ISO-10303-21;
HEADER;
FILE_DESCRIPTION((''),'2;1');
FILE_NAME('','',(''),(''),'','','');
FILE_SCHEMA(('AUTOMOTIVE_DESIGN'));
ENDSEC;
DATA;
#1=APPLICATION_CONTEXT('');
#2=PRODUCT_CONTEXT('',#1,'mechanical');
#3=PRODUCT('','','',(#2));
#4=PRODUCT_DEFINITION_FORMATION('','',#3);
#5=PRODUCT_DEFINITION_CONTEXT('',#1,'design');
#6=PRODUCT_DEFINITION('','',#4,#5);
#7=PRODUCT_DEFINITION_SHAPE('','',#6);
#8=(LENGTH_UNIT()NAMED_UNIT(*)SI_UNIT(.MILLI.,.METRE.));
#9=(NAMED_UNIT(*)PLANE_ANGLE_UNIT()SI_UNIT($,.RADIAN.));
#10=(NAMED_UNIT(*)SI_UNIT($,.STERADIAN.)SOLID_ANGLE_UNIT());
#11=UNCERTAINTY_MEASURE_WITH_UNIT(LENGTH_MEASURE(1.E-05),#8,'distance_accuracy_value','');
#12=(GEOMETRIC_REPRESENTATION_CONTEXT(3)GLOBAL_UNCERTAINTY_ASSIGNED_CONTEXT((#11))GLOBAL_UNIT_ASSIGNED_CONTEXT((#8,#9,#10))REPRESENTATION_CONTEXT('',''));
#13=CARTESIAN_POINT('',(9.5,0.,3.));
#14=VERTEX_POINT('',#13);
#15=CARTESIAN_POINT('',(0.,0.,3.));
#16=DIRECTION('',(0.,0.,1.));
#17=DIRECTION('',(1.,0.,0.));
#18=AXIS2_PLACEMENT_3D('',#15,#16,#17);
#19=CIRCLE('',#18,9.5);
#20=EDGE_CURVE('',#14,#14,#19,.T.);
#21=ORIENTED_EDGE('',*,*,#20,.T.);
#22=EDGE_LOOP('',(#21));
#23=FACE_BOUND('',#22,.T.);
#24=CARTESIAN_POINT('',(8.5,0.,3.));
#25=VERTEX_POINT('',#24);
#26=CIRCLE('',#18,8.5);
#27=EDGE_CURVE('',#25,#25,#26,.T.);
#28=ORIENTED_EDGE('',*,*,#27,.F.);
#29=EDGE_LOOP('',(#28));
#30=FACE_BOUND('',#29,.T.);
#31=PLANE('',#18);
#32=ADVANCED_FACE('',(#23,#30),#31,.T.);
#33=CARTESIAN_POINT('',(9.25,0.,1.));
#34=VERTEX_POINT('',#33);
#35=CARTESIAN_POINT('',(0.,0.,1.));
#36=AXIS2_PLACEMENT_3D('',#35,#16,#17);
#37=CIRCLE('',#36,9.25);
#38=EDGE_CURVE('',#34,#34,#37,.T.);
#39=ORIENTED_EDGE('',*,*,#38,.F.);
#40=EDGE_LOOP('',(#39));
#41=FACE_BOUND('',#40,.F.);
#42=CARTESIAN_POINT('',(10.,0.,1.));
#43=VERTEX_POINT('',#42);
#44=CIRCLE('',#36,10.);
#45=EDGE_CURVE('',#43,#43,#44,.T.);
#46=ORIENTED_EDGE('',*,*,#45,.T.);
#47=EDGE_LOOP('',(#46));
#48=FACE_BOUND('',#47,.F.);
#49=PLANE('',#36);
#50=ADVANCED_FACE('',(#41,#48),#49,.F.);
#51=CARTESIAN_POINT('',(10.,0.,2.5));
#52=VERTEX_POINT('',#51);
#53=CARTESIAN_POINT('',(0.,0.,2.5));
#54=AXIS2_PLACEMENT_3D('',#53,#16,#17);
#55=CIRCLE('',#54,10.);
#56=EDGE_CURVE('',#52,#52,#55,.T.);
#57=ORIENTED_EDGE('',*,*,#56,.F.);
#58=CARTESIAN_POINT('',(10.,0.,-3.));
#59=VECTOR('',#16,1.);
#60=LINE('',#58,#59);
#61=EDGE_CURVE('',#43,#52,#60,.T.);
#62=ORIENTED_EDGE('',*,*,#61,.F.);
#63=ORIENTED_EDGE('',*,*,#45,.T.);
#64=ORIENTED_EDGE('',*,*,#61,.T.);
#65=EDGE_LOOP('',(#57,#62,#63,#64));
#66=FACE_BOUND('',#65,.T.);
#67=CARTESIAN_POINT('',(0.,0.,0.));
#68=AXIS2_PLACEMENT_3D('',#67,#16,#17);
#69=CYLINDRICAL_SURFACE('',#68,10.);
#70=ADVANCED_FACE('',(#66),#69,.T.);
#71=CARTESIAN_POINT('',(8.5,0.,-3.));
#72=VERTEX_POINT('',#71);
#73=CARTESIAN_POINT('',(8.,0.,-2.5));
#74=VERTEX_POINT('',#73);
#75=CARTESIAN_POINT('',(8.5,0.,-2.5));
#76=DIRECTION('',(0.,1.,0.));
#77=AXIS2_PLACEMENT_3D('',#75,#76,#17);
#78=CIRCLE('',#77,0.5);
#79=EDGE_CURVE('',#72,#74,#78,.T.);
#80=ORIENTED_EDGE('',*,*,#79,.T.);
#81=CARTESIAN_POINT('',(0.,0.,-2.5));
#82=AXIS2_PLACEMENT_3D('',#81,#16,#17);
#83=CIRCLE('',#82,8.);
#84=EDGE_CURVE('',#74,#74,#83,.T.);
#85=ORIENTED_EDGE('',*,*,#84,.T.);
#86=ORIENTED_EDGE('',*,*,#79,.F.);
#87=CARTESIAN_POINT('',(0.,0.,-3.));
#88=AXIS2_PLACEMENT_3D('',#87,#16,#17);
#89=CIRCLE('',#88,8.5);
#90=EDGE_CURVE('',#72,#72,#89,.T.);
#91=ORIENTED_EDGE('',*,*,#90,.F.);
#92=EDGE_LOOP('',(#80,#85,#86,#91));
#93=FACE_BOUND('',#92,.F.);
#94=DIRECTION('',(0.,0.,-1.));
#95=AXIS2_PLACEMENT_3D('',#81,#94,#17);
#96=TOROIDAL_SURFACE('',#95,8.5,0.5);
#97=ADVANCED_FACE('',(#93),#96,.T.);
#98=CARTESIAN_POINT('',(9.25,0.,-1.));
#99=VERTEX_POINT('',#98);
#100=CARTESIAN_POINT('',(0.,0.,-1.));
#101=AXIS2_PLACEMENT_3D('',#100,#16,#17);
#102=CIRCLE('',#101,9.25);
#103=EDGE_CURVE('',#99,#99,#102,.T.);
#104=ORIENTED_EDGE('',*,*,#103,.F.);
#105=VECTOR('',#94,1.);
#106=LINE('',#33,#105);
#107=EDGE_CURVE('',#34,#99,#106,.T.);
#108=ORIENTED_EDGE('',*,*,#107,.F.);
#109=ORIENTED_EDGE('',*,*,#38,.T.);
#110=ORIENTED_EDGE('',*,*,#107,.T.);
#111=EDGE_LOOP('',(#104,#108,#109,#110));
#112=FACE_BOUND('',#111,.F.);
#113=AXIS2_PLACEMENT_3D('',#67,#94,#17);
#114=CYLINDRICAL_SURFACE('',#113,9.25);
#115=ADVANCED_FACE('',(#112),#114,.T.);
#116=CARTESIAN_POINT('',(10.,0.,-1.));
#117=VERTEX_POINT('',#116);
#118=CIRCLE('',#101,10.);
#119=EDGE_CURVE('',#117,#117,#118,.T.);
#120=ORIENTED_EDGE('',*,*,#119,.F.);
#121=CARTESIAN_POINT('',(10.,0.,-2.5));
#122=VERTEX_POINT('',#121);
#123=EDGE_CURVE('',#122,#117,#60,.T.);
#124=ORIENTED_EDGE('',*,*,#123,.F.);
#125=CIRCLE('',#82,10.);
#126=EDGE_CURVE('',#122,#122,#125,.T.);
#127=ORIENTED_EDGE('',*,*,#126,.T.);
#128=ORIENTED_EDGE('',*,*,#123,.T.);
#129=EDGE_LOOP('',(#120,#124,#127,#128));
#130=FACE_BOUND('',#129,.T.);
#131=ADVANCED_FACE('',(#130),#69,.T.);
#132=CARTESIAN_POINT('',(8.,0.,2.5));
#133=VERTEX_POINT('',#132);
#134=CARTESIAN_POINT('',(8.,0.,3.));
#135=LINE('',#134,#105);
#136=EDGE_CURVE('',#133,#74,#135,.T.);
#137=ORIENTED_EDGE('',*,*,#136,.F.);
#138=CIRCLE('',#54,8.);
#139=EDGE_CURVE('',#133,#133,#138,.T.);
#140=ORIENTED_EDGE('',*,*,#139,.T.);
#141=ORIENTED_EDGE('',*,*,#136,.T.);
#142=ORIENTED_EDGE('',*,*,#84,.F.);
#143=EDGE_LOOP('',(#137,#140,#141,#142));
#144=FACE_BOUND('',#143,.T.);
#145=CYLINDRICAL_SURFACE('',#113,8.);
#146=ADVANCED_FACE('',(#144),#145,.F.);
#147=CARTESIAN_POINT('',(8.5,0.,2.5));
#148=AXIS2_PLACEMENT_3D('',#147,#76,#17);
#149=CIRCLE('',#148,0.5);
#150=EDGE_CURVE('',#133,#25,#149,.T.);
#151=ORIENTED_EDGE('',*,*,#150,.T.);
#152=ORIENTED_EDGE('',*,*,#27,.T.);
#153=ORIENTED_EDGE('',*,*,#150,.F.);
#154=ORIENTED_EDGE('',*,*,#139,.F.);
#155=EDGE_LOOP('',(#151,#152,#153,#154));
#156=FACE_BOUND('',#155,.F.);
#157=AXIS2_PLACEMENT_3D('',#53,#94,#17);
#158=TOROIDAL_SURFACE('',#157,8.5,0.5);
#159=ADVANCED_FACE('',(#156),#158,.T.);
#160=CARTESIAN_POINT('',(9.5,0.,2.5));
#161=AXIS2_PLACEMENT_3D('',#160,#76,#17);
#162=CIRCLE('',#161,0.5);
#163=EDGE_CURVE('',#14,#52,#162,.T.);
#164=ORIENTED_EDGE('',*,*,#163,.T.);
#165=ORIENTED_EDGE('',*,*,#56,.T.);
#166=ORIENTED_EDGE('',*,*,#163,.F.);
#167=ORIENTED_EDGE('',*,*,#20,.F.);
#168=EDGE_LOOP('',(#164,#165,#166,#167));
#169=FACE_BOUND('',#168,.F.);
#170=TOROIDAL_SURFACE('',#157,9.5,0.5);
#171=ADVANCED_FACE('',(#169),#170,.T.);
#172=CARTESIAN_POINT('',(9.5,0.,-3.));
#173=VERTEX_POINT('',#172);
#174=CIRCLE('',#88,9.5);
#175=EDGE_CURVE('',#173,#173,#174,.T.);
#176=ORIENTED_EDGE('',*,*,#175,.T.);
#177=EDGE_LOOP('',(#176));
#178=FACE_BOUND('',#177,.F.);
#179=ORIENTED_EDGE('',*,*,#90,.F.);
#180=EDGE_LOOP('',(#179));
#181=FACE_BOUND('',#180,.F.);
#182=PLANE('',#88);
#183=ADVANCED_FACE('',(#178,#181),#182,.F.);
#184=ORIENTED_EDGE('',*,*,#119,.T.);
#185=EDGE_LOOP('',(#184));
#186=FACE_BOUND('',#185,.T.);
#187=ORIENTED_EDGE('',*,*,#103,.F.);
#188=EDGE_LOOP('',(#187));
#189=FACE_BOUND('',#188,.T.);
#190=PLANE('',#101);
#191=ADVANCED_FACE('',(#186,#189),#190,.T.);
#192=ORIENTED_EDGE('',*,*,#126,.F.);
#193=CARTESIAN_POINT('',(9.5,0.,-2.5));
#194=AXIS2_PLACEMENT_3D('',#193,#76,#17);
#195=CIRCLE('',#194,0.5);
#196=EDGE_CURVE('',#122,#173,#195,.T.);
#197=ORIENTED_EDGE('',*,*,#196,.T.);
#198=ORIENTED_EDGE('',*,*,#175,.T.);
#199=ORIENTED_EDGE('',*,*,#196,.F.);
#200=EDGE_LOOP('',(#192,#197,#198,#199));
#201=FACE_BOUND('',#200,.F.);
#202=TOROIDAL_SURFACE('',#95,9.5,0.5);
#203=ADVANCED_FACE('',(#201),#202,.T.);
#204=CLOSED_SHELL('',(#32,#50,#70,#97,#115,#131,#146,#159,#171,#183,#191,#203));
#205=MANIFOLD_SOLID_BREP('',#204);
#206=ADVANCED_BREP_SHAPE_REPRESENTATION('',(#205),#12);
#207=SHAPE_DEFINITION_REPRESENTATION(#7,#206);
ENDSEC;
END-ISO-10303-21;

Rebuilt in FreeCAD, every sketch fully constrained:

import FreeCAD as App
import Part
import Sketcher
from FreeCAD import Vector
Q = App.Units.Quantity


def edges_at(feature, points):
    """Names of the edges that pass closest to the given points."""
    edges = feature.Shape.Edges
    near = lambda p: min(range(len(edges)), key=lambda i: edges[i].distToShape(Part.Vertex(*p))[0])
    return sorted({f"Edge{near(p) + 1}" for p in points})

doc = App.newDocument("Part")
params = doc.addObject("Spreadsheet::Sheet", "Params")
for row, (alias, value) in enumerate([
    ("sketch1_diameter", "20 mm"),
    ("sketch1_diameter2", "16 mm"),
    ("pad1_length", "6 mm"),
    ("sketch2_diameter", "20 mm"),
    ("sketch2_diameter2", "18.5 mm"),
    ("pocket1_length", "2 mm"),
    ("fillet_radius", "0.5 mm"),
], start=1):
    params.set(f"A{row}", alias)
    params.set(f"B{row}", "=" + value)
    params.setAlias(f"B{row}", alias)

body = doc.addObject("PartDesign::Body", "Body")

sketch1 = body.newObject("Sketcher::SketchObject", "Sketch")
sketch1.AttachmentSupport = (doc.getObject("XY_Plane"), [""])
sketch1.MapMode = "FlatFace"
sketch1.addGeometry([
    Part.Circle(Vector(0, 0, 0), Vector(0, 0, 1), 10),
    Part.Circle(Vector(0, 0, 0), Vector(0, 0, 1), 8),
], False)
sketch1.addConstraint([
    Sketcher.Constraint("Coincident", 0, 3, -1, 1),
    Sketcher.Constraint("Coincident", 1, 3, -1, 1),
    Sketcher.Constraint("Diameter", 0, Q("20 mm")),
    Sketcher.Constraint("Diameter", 1, Q("16 mm")),
])
sketch1.setExpression("Constraints[2]", "Params.sketch1_diameter")
sketch1.setExpression("Constraints[3]", "Params.sketch1_diameter2")
pad1 = body.newObject("PartDesign::Pad", "Pad")
pad1.Profile = sketch1
pad1.setExpression("Length", "Params.pad1_length")
pad1.Midplane = True

sketch2 = body.newObject("Sketcher::SketchObject", "Sketch001")
sketch2.AttachmentSupport = (doc.getObject("XY_Plane"), [""])
sketch2.MapMode = "FlatFace"
sketch2.addGeometry([
    Part.Circle(Vector(0, 0, 0), Vector(0, 0, 1), 10),
    Part.Circle(Vector(0, 0, 0), Vector(0, 0, 1), 9),
], False)
sketch2.addConstraint([
    Sketcher.Constraint("Coincident", 0, 3, -1, 1),
    Sketcher.Constraint("Coincident", 1, 3, -1, 1),
    Sketcher.Constraint("Diameter", 0, Q("20 mm")),
    Sketcher.Constraint("Diameter", 1, Q("18.5 mm")),
])
sketch2.setExpression("Constraints[2]", "Params.sketch2_diameter")
sketch2.setExpression("Constraints[3]", "Params.sketch2_diameter2")
pocket1 = body.newObject("PartDesign::Pocket", "Pocket")
pocket1.Profile = sketch2
pocket1.setExpression("Length", "Params.pocket1_length")
pocket1.Midplane = True
doc.recompute()

fillet = body.newObject("PartDesign::Fillet", "Fillet")
fillet.Base = (pocket1, edges_at(pocket1, [
    (-10, 0, 3),
    (-8, 0, 3),
    (-10, 0, -3),
    (-8, 0, -3),
]))
fillet.setExpression("Radius", "Params.fillet_radius")

doc.recompute()
